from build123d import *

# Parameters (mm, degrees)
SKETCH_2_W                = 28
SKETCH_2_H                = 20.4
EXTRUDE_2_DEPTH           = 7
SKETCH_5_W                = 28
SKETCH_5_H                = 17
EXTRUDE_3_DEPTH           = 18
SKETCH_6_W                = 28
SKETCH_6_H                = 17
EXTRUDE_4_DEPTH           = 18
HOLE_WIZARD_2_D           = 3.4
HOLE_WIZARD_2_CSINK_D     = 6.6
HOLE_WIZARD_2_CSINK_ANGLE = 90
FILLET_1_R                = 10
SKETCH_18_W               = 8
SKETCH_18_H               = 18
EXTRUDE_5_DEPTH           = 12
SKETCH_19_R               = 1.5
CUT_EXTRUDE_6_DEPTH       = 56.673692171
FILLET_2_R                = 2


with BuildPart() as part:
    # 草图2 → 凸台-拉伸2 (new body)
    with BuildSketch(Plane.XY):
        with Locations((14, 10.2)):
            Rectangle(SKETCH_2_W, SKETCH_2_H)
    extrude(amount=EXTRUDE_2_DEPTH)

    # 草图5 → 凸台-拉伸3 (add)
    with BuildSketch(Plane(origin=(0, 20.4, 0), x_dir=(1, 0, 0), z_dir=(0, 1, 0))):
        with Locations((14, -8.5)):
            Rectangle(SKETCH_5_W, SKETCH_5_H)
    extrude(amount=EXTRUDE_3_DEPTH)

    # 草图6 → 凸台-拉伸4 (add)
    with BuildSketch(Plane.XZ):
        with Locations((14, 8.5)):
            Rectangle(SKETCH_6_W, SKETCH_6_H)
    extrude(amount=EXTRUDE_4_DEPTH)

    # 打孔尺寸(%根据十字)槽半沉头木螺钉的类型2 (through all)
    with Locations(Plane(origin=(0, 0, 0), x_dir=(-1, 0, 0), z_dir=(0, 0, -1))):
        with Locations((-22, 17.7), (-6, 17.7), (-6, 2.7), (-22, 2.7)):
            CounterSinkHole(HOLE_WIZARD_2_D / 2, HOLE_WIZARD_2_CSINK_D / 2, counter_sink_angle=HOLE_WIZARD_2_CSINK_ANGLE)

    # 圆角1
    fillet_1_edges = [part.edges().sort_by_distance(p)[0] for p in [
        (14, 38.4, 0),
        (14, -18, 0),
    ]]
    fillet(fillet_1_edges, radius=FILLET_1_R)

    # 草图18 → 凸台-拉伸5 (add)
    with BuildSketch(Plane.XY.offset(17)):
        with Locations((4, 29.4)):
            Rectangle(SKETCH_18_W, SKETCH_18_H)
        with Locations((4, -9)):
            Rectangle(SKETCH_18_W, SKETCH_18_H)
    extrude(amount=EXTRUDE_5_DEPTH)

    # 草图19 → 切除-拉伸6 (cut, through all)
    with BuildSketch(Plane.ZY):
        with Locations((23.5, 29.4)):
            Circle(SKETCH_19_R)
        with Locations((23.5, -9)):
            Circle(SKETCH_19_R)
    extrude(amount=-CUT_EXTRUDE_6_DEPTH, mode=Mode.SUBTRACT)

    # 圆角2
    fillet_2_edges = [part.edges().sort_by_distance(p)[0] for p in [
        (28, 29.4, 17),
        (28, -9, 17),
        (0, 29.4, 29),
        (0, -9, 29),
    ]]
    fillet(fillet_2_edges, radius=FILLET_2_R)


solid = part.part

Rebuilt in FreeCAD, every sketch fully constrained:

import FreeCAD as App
import Part
import Sketcher
from FreeCAD import Vector


def edges_at(feature, points):
    """Names of the edges that pass closest to the given points."""
    edges = feature.Shape.Edges
    near = lambda p: min(range(len(edges)), key=lambda i: edges[i].distToShape(Part.Vertex(*p))[0])
    return sorted({f"Edge{near(p) + 1}" for p in points})

doc = App.newDocument("Part")
body = doc.addObject("PartDesign::Body", "Body")

# Sketch on XY plane
sketch1 = body.newObject("Sketcher::SketchObject", "Sketch")
sketch1.AttachmentSupport = (doc.getObject("XY_Plane"), [""])
sketch1.MapMode = "FlatFace"
sketch1.addGeometry(Part.LineSegment(Vector(0, 20, 0), Vector(0, 0, 0)), False)
sketch1.addGeometry(Part.LineSegment(Vector(0, 0, 0), Vector(28, 0, 0)), False)
sketch1.addGeometry(Part.LineSegment(Vector(28, 0, 0), Vector(28, 20, 0)), False)
sketch1.addGeometry(Part.LineSegment(Vector(28, 20, 0), Vector(0, 20, 0)), False)
sketch1.addConstraint(Sketcher.Constraint("Coincident", 0, 2, 1, 1))
sketch1.addConstraint(Sketcher.Constraint("Coincident", 1, 2, 2, 1))
sketch1.addConstraint(Sketcher.Constraint("Coincident", 2, 2, 3, 1))
sketch1.addConstraint(Sketcher.Constraint("Coincident", 3, 2, 0, 1))
sketch1.addConstraint(Sketcher.Constraint("Vertical", 0))
sketch1.addConstraint(Sketcher.Constraint("Horizontal", 1))
sketch1.addConstraint(Sketcher.Constraint("Vertical", 2))
sketch1.addConstraint(Sketcher.Constraint("Horizontal", 3))
sketch1.addConstraint(Sketcher.Constraint("Coincident", 0, 2, -1, 1))
sketch1.addConstraint(Sketcher.Constraint("DistanceX", 1, 1, 1, 2, 28.0))
sketch1.addConstraint(Sketcher.Constraint("DistanceY", 0, 2, 0, 1, 20.4))
pad1 = body.newObject("PartDesign::Pad", "Pad")
pad1.Profile = sketch1
pad1.Length = 7

# Sketch on XZ plane
sketch2 = body.newObject("Sketcher::SketchObject", "Sketch001")
sketch2.AttachmentSupport = (doc.getObject("XZ_Plane"), [""])
sketch2.MapMode = "FlatFace"
sketch2.AttachmentOffset = App.Placement(Vector(0, 0, -20.4), App.Rotation())
sketch2.addGeometry(Part.LineSegment(Vector(0, 0, 0), Vector(0, 17, 0)), False)
sketch2.addGeometry(Part.LineSegment(Vector(0, 17, 0), Vector(28, 17, 0)), False)
sketch2.addGeometry(Part.LineSegment(Vector(28, 17, 0), Vector(28, 0, 0)), False)
sketch2.addGeometry(Part.LineSegment(Vector(28, 0, 0), Vector(0, 0, 0)), False)
sketch2.addConstraint(Sketcher.Constraint("Coincident", 0, 2, 1, 1))
sketch2.addConstraint(Sketcher.Constraint("Coincident", 1, 2, 2, 1))
sketch2.addConstraint(Sketcher.Constraint("Coincident", 2, 2, 3, 1))
sketch2.addConstraint(Sketcher.Constraint("Coincident", 3, 2, 0, 1))
sketch2.addConstraint(Sketcher.Constraint("Vertical", 0))
sketch2.addConstraint(Sketcher.Constraint("Horizontal", 1))
sketch2.addConstraint(Sketcher.Constraint("Vertical", 2))
sketch2.addConstraint(Sketcher.Constraint("Horizontal", 3))
sketch2.addConstraint(Sketcher.Constraint("Coincident", 3, 2, -1, 1))
sketch2.addConstraint(Sketcher.Constraint("DistanceX", 1, 1, 1, 2, 28.0))
sketch2.addConstraint(Sketcher.Constraint("DistanceY", 0, 1, 0, 2, 17.0))
pad2 = body.newObject("PartDesign::Pad", "Pad001")
pad2.Profile = sketch2
pad2.Length = 18
pad2.Reversed = True

# Sketch on XZ plane
sketch3 = body.newObject("Sketcher::SketchObject", "Sketch002")
sketch3.AttachmentSupport = (doc.getObject("XZ_Plane"), [""])
sketch3.MapMode = "FlatFace"
sketch3.addGeometry(Part.LineSegment(Vector(0, 17, 0), Vector(0, 0, 0)), False)
sketch3.addGeometry(Part.LineSegment(Vector(0, 0, 0), Vector(28, 0, 0)), False)
sketch3.addGeometry(Part.LineSegment(Vector(28, 0, 0), Vector(28, 17, 0)), False)
sketch3.addGeometry(Part.LineSegment(Vector(28, 17, 0), Vector(0, 17, 0)), False)
sketch3.addConstraint(Sketcher.Constraint("Coincident", 0, 2, 1, 1))
sketch3.addConstraint(Sketcher.Constraint("Coincident", 1, 2, 2, 1))
sketch3.addConstraint(Sketcher.Constraint("Coincident", 2, 2, 3, 1))
sketch3.addConstraint(Sketcher.Constraint("Coincident", 3, 2, 0, 1))
sketch3.addConstraint(Sketcher.Constraint("Vertical", 0))
sketch3.addConstraint(Sketcher.Constraint("Horizontal", 1))
sketch3.addConstraint(Sketcher.Constraint("Vertical", 2))
sketch3.addConstraint(Sketcher.Constraint("Horizontal", 3))
sketch3.addConstraint(Sketcher.Constraint("Coincident", 0, 2, -1, 1))
sketch3.addConstraint(Sketcher.Constraint("DistanceX", 1, 1, 1, 2, 28.0))
sketch3.addConstraint(Sketcher.Constraint("DistanceY", 0, 2, 0, 1, 17.0))
pad3 = body.newObject("PartDesign::Pad", "Pad002")
pad3.Profile = sketch3
pad3.Length = 18

# Sketch on XY plane
sketch4 = body.newObject("Sketcher::SketchObject", "Sketch003")
sketch4.AttachmentSupport = (doc.getObject("XY_Plane"), [""])
sketch4.MapMode = "FlatFace"
sketch4.addGeometry(Part.Circle(Vector(22, 17.7, 0), Vector(0, 0, 1), 1.7), False)
sketch4.addGeometry(Part.Circle(Vector(6, 17.7, 0), Vector(0, 0, 1), 1.7), False)
sketch4.addGeometry(Part.Circle(Vector(6, 2.7, 0), Vector(0, 0, 1), 1.7), False)
sketch4.addGeometry(Part.Circle(Vector(22, 2.7, 0), Vector(0, 0, 1), 1.7), False)
sketch4.addConstraint(Sketcher.Constraint("Equal", 0, 1))
sketch4.addConstraint(Sketcher.Constraint("Equal", 1, 2))
sketch4.addConstraint(Sketcher.Constraint("Equal", 2, 3))
sketch4.addConstraint(Sketcher.Constraint("Horizontal", 0, 3, 1, 3))
sketch4.addConstraint(Sketcher.Constraint("Horizontal", 2, 3, 3, 3))
sketch4.addConstraint(Sketcher.Constraint("Vertical", 1, 3, 2, 3))
sketch4.addConstraint(Sketcher.Constraint("Vertical", 0, 3, 3, 3))
sketch4.addConstraint(Sketcher.Constraint("Diameter", 0, 3.4))
sketch4.addConstraint(Sketcher.Constraint("DistanceX", -1, 1, 0, 3, 22.0))
sketch4.addConstraint(Sketcher.Constraint("DistanceX", -1, 1, 1, 3, 6.0))
sketch4.addConstraint(Sketcher.Constraint("DistanceY", 2, 3, 1, 3, 15.0))
sketch4.addConstraint(Sketcher.Constraint("DistanceY", -1, 1, 0, 3, 17.7))
doc.recompute()
hole = body.newObject("PartDesign::Hole", "Hole")
hole.Profile = sketch4
hole.ThreadType = "None"
hole.Diameter = 3.4
hole.DepthType = "ThroughAll"
hole.HoleCutType = "Countersink"
hole.HoleCutDiameter = 6.6
hole.HoleCutCountersinkAngle = 90
hole.Reversed = True
doc.recompute()

fillet = body.newObject("PartDesign::Fillet", "Fillet")
fillet.Base = (hole, edges_at(hole, [(14, 38.4, 0), (14, -18, 0)]))
fillet.Radius = 10

# Sketch on XY plane
sketch5 = body.newObject("Sketcher::SketchObject", "Sketch004")
sketch5.AttachmentSupport = (doc.getObject("XY_Plane"), [""])
sketch5.MapMode = "FlatFace"
sketch5.AttachmentOffset = App.Placement(Vector(0, 0, 17), App.Rotation())
sketch5.addGeometry(Part.LineSegment(Vector(0, 38, 0), Vector(0, 20, 0)), False)
sketch5.addGeometry(Part.LineSegment(Vector(0, 20, 0), Vector(8, 20, 0)), False)
sketch5.addGeometry(Part.LineSegment(Vector(8, 20, 0), Vector(8, 38, 0)), False)
sketch5.addGeometry(Part.LineSegment(Vector(8, 38, 0), Vector(0, 38, 0)), False)
sketch5.addGeometry(Part.LineSegment(Vector(0, 0, 0), Vector(0, -18, 0)), False)
sketch5.addGeometry(Part.LineSegment(Vector(0, -18, 0), Vector(8, -18, 0)), False)
sketch5.addGeometry(Part.LineSegment(Vector(8, -18, 0), Vector(8, 0, 0)), False)
sketch5.addGeometry(Part.LineSegment(Vector(8, 0, 0), Vector(0, 0, 0)), False)
sketch5.addConstraint(Sketcher.Constraint("Coincident", 0, 2, 1, 1))
sketch5.addConstraint(Sketcher.Constraint("Coincident", 1, 2, 2, 1))
sketch5.addConstraint(Sketcher.Constraint("Coincident", 2, 2, 3, 1))
sketch5.addConstraint(Sketcher.Constraint("Coincident", 3, 2, 0, 1))
sketch5.addConstraint(Sketcher.Constraint("Coincident", 4, 2, 5, 1))
sketch5.addConstraint(Sketcher.Constraint("Coincident", 5, 2, 6, 1))
sketch5.addConstraint(Sketcher.Constraint("Coincident", 6, 2, 7, 1))
sketch5.addConstraint(Sketcher.Constraint("Coincident", 7, 2, 4, 1))
sketch5.addConstraint(Sketcher.Constraint("Vertical", 0))
sketch5.addConstraint(Sketcher.Constraint("Horizontal", 1))
sketch5.addConstraint(Sketcher.Constraint("Vertical", 2))
sketch5.addConstraint(Sketcher.Constraint("Horizontal", 3))
sketch5.addConstraint(Sketcher.Constraint("Vertical", 4))
sketch5.addConstraint(Sketcher.Constraint("Horizontal", 5))
sketch5.addConstraint(Sketcher.Constraint("Vertical", 6))
sketch5.addConstraint(Sketcher.Constraint("Horizontal", 7))
sketch5.addConstraint(Sketcher.Constraint("Coincident", 7, 2, -1, 1))
sketch5.addConstraint(Sketcher.Constraint("PointOnObject", 0, 2, -2))
sketch5.addConstraint(Sketcher.Constraint("Vertical", 2, 2, 5, 2))
sketch5.addConstraint(Sketcher.Constraint("Equal", 2, 4))
sketch5.addConstraint(Sketcher.Constraint("DistanceX", 1, 1, 1, 2, 8.0))
sketch5.addConstraint(Sketcher.Constraint("DistanceY", 0, 2, 0, 1, 18.0))
sketch5.addConstraint(Sketcher.Constraint("DistanceY", -1, 1, 0, 2, 20.4))
pad4 = body.newObject("PartDesign::Pad", "Pad003")
pad4.Profile = sketch5
pad4.Length = 12

# Sketch on YZ plane
sketch6 = body.newObject("Sketcher::SketchObject", "Sketch005")
sketch6.AttachmentSupport = (doc.getObject("YZ_Plane"), [""])
sketch6.MapMode = "FlatFace"
sketch6.addGeometry(Part.Circle(Vector(29.4, 23.5, 0), Vector(0, 0, 1), 1.5), False)
sketch6.addGeometry(Part.Circle(Vector(-9, 23.5, 0), Vector(0, 0, 1), 1.5), False)
sketch6.addConstraint(Sketcher.Constraint("Equal", 0, 1))
sketch6.addConstraint(Sketcher.Constraint("Horizontal", 0, 3, 1, 3))
sketch6.addConstraint(Sketcher.Constraint("Diameter", 0, 3.0))
sketch6.addConstraint(Sketcher.Constraint("DistanceX", 1, 3, -1, 1, 9.0))
sketch6.addConstraint(Sketcher.Constraint("DistanceX", -1, 1, 0, 3, 29.4))
sketch6.addConstraint(Sketcher.Constraint("DistanceY", -1, 1, 0, 3, 23.5))
pocket1 = body.newObject("PartDesign::Pocket", "Pocket")
pocket1.Profile = sketch6
pocket1.Type = "ThroughAll"
pocket1.Reversed = True
doc.recompute()

fillet2 = body.newObject("PartDesign::Fillet", "Fillet001")
fillet2.Base = (pocket1, edges_at(pocket1, [
    (28, 29.4, 17),
    (28, -9, 17),
    (0, 29.4, 29),
    (0, -9, 29),
]))
fillet2.Radius = 2

doc.recompute()
